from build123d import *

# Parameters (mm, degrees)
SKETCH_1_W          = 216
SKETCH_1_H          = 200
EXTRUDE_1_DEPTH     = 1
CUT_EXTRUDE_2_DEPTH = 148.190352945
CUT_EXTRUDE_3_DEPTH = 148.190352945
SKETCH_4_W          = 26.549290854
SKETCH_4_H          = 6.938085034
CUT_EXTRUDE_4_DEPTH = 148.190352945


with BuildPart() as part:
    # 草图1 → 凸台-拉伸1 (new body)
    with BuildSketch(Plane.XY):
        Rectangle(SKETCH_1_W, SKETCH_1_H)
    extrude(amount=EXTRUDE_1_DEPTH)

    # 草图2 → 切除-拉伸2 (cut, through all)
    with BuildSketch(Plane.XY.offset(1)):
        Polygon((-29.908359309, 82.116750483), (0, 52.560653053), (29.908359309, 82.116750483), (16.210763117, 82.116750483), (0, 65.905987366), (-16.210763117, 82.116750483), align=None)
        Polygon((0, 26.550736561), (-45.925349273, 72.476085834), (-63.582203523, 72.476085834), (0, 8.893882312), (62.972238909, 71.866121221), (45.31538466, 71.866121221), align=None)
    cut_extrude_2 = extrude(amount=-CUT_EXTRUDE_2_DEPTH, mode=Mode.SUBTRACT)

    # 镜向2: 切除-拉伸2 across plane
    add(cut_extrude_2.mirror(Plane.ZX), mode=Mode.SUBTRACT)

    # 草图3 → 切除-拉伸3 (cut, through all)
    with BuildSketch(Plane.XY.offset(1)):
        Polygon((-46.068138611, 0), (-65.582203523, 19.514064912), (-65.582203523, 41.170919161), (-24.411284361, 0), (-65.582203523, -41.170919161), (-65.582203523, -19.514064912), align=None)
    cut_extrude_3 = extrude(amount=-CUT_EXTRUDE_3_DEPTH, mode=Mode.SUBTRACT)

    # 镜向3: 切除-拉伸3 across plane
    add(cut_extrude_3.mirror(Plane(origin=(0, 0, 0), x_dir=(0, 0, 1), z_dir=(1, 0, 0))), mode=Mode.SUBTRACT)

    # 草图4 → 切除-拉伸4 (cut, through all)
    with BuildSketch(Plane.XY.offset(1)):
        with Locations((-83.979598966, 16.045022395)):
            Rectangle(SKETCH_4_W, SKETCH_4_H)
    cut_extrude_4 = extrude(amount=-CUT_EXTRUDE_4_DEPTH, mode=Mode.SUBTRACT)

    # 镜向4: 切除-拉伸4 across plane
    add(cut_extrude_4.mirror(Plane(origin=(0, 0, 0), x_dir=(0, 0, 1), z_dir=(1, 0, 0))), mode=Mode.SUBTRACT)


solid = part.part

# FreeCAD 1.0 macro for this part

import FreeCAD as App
import Part
import Sketcher

V = App.Vector
Q = App.Units.Quantity

doc = App.newDocument("Part")
body = doc.addObject("PartDesign::Body", "Body")

sketch1 = body.newObject("Sketcher::SketchObject", "Sketch")
sketch1.AttachmentSupport = (doc.getObject("XY_Plane"), [""])
sketch1.MapMode = "FlatFace"
sketch1.addGeometry([
    Part.LineSegment(V(-108, 100, 0), V(-108, -100, 0)),
    Part.LineSegment(V(-108, -100, 0), V(108, -100, 0)),
    Part.LineSegment(V(108, -100, 0), V(108, 100, 0)),
    Part.LineSegment(V(108, 100, 0), V(-108, 100, 0)),
], False)
sketch1.addConstraint([
    Sketcher.Constraint("Coincident", 0, 2, 1, 1),
    Sketcher.Constraint("Coincident", 1, 2, 2, 1),
    Sketcher.Constraint("Coincident", 2, 2, 3, 1),
    Sketcher.Constraint("Coincident", 3, 2, 0, 1),
    Sketcher.Constraint("Vertical", 0),
    Sketcher.Constraint("Horizontal", 1),
    Sketcher.Constraint("Vertical", 2),
    Sketcher.Constraint("Horizontal", 3),
    Sketcher.Constraint("Symmetric", 0, 2, 2, 2, -1, 1),
    Sketcher.Constraint("DistanceX", 1, 1, 1, 2, Q("216 mm")),
    Sketcher.Constraint("DistanceY", 0, 2, 0, 1, Q("200 mm")),
])
pad1 = body.newObject("PartDesign::Pad", "Pad")
pad1.Profile = sketch1
pad1.Length = 1

sketch2 = body.newObject("Sketcher::SketchObject", "Sketch001")
sketch2.AttachmentSupport = (doc.getObject("XY_Plane"), [""])
sketch2.MapMode = "FlatFace"
sketch2.AttachmentOffset = App.Placement(V(0, 0, 1), App.Rotation())
sketch2.addGeometry([
    Part.LineSegment(V(-30, 82, 0), V(0, 53, 0)),
    Part.LineSegment(V(0, 53, 0), V(30, 82, 0)),
    Part.LineSegment(V(30, 82, 0), V(16, 82, 0)),
    Part.LineSegment(V(16, 82, 0), V(0, 66, 0)),
    Part.LineSegment(V(0, 66, 0), V(-16, 82, 0)),
    Part.LineSegment(V(-16, 82, 0), V(-30, 82, 0)),
    Part.LineSegment(V(0, 27, 0), V(-46, 72, 0)),
    Part.LineSegment(V(-46, 72, 0), V(-64, 72, 0)),
    Part.LineSegment(V(-64, 72, 0), V(0, 9, 0)),
    Part.LineSegment(V(0, 9, 0), V(63, 72, 0)),
    Part.LineSegment(V(63, 72, 0), V(45, 72, 0)),
    Part.LineSegment(V(45, 72, 0), V(0, 27, 0)),
], False)
sketch2.addConstraint([
    Sketcher.Constraint("Coincident", 0, 2, 1, 1),
    Sketcher.Constraint("Coincident", 1, 2, 2, 1),
    Sketcher.Constraint("Coincident", 2, 2, 3, 1),
    Sketcher.Constraint("Coincident", 3, 2, 4, 1),
    Sketcher.Constraint("Coincident", 4, 2, 5, 1),
    Sketcher.Constraint("Coincident", 5, 2, 0, 1),
    Sketcher.Constraint("Coincident", 6, 2, 7, 1),
    Sketcher.Constraint("Coincident", 7, 2, 8, 1),
    Sketcher.Constraint("Coincident", 8, 2, 9, 1),
    Sketcher.Constraint("Coincident", 9, 2, 10, 1),
    Sketcher.Constraint("Coincident", 10, 2, 11, 1),
    Sketcher.Constraint("Coincident", 11, 2, 6, 1),
    Sketcher.Constraint("Horizontal", 2),
    Sketcher.Constraint("Horizontal", 5),
    Sketcher.Constraint("Horizontal", 7),
    Sketcher.Constraint("Horizontal", 10),
    Sketcher.Constraint("Symmetric", 2, 2, 4, 2, -2),
    Sketcher.Constraint("PointOnObject", 0, 2, -2),
    Sketcher.Constraint("PointOnObject", 3, 2, -2),
    Sketcher.Constraint("PointOnObject", 8, 2, -2),
    Sketcher.Constraint("PointOnObject", 11, 2, -2),
    Sketcher.Constraint("Perpendicular", 3, 4),
    Sketcher.Constraint("Parallel", 4, 6),
    Sketcher.Constraint("Parallel", 6, 8),
    Sketcher.Constraint("Perpendicular", 8, 9),
    Sketcher.Constraint("Parallel", 9, 11),
    Sketcher.Constraint("Equal", 2, 5),
    Sketcher.Constraint("DistanceY", 3, 2, 6, 2, Q("6.570098 mm")),
    Sketcher.Constraint("Distance", 0, Q("42.048458 mm")),
    Sketcher.Constraint("Distance", 3, Q("22.925481 mm")),
    Sketcher.Constraint("Distance", 6, Q("64.948252 mm")),
    Sketcher.Constraint("Distance", 11, Q("64.085632 mm")),
    Sketcher.Constraint("DistanceX", 2, 2, 2, 1, Q("13.697596 mm")),
    Sketcher.Constraint("DistanceX", 7, 2, 7, 1, Q("17.656854 mm")),
    Sketcher.Constraint("DistanceY", -1, 1, 1, 2, Q("82.11675 mm")),
])
pocket1 = body.newObject("PartDesign::Pocket", "Pocket")
pocket1.Profile = sketch2
pocket1.Type = "ThroughAll"
doc.recompute()

mirrored = body.newObject("PartDesign::Mirrored", "Mirrored")
mirrored.Originals = [pocket1]
mirrored.MirrorPlane = (doc.getObject("XZ_Plane"), [""])
body.Tip = mirrored

sketch3 = body.newObject("Sketcher::SketchObject", "Sketch002")
sketch3.AttachmentSupport = (doc.getObject("XY_Plane"), [""])
sketch3.MapMode = "FlatFace"
sketch3.AttachmentOffset = App.Placement(V(0, 0, 1), App.Rotation())
sketch3.addGeometry([
    Part.LineSegment(V(-66, 20, 0), V(-46, 0, 0)),
    Part.LineSegment(V(-46, 0, 0), V(-66, -20, 0)),
    Part.LineSegment(V(-66, -20, 0), V(-66, -41, 0)),
    Part.LineSegment(V(-66, -41, 0), V(-24, 0, 0)),
    Part.LineSegment(V(-24, 0, 0), V(-66, 41, 0)),
    Part.LineSegment(V(-66, 41, 0), V(-66, 20, 0)),
], False)
sketch3.addConstraint([
    Sketcher.Constraint("Coincident", 0, 2, 1, 1),
    Sketcher.Constraint("Coincident", 1, 2, 2, 1),
    Sketcher.Constraint("Coincident", 2, 2, 3, 1),
    Sketcher.Constraint("Coincident", 3, 2, 4, 1),
    Sketcher.Constraint("Coincident", 4, 2, 5, 1),
    Sketcher.Constraint("Coincident", 5, 2, 0, 1),
    Sketcher.Constraint("Vertical", 2),
    Sketcher.Constraint("Vertical", 5),
    Sketcher.Constraint("Symmetric", 2, 2, 4, 2, -1),
    Sketcher.Constraint("PointOnObject", 0, 2, -1),
    Sketcher.Constraint("PointOnObject", 3, 2, -1),
    Sketcher.Constraint("Perpendicular", 0, 1),
    Sketcher.Constraint("Parallel", 1, 3),
    Sketcher.Constraint("Perpendicular", 3, 4),
    Sketcher.Constraint("DistanceY", 2, 2, 2, 1, Q("21.656854 mm")),
    Sketcher.Constraint("DistanceX", 0, 2, -1, 1, Q("46.068139 mm")),
    Sketcher.Constraint("DistanceY", 2, 2, -1, 1, Q("41.170919 mm")),
])
pocket2 = body.newObject("PartDesign::Pocket", "Pocket001")
pocket2.Profile = sketch3
pocket2.Type = "ThroughAll"
doc.recompute()

mirrored2 = body.newObject("PartDesign::Mirrored", "Mirrored001")
mirrored2.Originals = [pocket2]
mirrored2.MirrorPlane = (doc.getObject("YZ_Plane"), [""])
body.Tip = mirrored2

sketch4 = body.newObject("Sketcher::SketchObject", "Sketch003")
sketch4.AttachmentSupport = (doc.getObject("XY_Plane"), [""])
sketch4.MapMode = "FlatFace"
sketch4.AttachmentOffset = App.Placement(V(0, 0, 1), App.Rotation())
sketch4.addGeometry([
    Part.LineSegment(V(-97, 20, 0), V(-97, 13, 0)),
    Part.LineSegment(V(-97, 13, 0), V(-71, 13, 0)),
    Part.LineSegment(V(-71, 13, 0), V(-71, 20, 0)),
    Part.LineSegment(V(-71, 20, 0), V(-97, 20, 0)),
], False)
sketch4.addConstraint([
    Sketcher.Constraint("Coincident", 0, 2, 1, 1),
    Sketcher.Constraint("Coincident", 1, 2, 2, 1),
    Sketcher.Constraint("Coincident", 2, 2, 3, 1),
    Sketcher.Constraint("Coincident", 3, 2, 0, 1),
    Sketcher.Constraint("Vertical", 0),
    Sketcher.Constraint("Horizontal", 1),
    Sketcher.Constraint("Vertical", 2),
    Sketcher.Constraint("Horizontal", 3),
    Sketcher.Constraint("DistanceX", 1, 1, 1, 2, Q("26.549291 mm")),
    Sketcher.Constraint("DistanceY", 0, 2, 0, 1, Q("6.938085 mm")),
    Sketcher.Constraint("DistanceY", -1, 1, 0, 2, Q("12.57598 mm")),
    Sketcher.Constraint("DistanceX", 0, 2, -1, 1, Q("97.254244 mm")),
])
pocket3 = body.newObject("PartDesign::Pocket", "Pocket002")
pocket3.Profile = sketch4
pocket3.Type = "ThroughAll"
doc.recompute()

mirrored3 = body.newObject("PartDesign::Mirrored", "Mirrored002")
mirrored3.Originals = [pocket3]
mirrored3.MirrorPlane = (doc.getObject("YZ_Plane"), [""])
body.Tip = mirrored3

doc.recompute()
